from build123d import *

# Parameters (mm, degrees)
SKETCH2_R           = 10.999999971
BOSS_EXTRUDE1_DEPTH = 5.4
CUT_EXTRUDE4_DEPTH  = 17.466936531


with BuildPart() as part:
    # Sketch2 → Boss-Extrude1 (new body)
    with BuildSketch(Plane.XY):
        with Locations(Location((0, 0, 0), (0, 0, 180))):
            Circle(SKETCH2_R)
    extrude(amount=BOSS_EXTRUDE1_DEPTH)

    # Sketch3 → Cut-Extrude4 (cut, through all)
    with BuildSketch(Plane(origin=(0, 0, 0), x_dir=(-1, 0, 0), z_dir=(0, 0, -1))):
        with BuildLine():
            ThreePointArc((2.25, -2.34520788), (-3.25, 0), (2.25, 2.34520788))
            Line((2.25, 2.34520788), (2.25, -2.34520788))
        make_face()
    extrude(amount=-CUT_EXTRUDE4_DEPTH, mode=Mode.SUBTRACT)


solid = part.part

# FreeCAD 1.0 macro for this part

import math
import FreeCAD as App
import Part
import Sketcher
Q = App.Units.Quantity

doc = App.newDocument("Part")
body = doc.addObject("PartDesign::Body", "Body")

# Sketch on XY plane
sketch1 = body.newObject("Sketcher::SketchObject", "Sketch")
sketch1.AttachmentSupport = (doc.getObject("XY_Plane"), [""])
sketch1.MapMode = "FlatFace"
sketch1.addGeometry(Part.Circle(App.Vector(0, 0, 0), App.Vector(0, 0, 1), 11), False)
sketch1.addConstraint(Sketcher.Constraint("Coincident", 0, 3, -1, 1))
sketch1.addConstraint(Sketcher.Constraint("Diameter", 0, Q("22 mm")))
pad1 = body.newObject("PartDesign::Pad", "Pad")
pad1.Profile = sketch1
pad1.Length = 5.4

# Sketch on XY plane
sketch2 = body.newObject("Sketcher::SketchObject", "Sketch001")
sketch2.AttachmentSupport = (doc.getObject("XY_Plane"), [""])
sketch2.MapMode = "FlatFace"
sketch2.addGeometry(Part.ArcOfCircle(Part.Circle(App.Vector(0, 0, 0), App.Vector(0, 0, 1), 3.2), math.radians(-134), math.radians(134)), False)
sketch2.addGeometry(Part.LineSegment(App.Vector(-2.2, -2.3, 0), App.Vector(-2.2, 2.3, 0)), False)
sketch2.addConstraint(Sketcher.Constraint("Coincident", 0, 1, 1, 1))
sketch2.addConstraint(Sketcher.Constraint("Coincident", 1, 2, 0, 2))
sketch2.addConstraint(Sketcher.Constraint("Vertical", 1))
sketch2.addConstraint(Sketcher.Constraint("Coincident", 0, 3, -1, 1))
sketch2.addConstraint(Sketcher.Constraint("Radius", 0, Q("3.25 mm")))
sketch2.addConstraint(Sketcher.Constraint("DistanceX", 0, 1, -1, 1, Q("2.25 mm")))
pocket1 = body.newObject("PartDesign::Pocket", "Pocket")
pocket1.Profile = sketch2
pocket1.Type = "ThroughAll"
pocket1.Reversed = True

doc.recompute()
